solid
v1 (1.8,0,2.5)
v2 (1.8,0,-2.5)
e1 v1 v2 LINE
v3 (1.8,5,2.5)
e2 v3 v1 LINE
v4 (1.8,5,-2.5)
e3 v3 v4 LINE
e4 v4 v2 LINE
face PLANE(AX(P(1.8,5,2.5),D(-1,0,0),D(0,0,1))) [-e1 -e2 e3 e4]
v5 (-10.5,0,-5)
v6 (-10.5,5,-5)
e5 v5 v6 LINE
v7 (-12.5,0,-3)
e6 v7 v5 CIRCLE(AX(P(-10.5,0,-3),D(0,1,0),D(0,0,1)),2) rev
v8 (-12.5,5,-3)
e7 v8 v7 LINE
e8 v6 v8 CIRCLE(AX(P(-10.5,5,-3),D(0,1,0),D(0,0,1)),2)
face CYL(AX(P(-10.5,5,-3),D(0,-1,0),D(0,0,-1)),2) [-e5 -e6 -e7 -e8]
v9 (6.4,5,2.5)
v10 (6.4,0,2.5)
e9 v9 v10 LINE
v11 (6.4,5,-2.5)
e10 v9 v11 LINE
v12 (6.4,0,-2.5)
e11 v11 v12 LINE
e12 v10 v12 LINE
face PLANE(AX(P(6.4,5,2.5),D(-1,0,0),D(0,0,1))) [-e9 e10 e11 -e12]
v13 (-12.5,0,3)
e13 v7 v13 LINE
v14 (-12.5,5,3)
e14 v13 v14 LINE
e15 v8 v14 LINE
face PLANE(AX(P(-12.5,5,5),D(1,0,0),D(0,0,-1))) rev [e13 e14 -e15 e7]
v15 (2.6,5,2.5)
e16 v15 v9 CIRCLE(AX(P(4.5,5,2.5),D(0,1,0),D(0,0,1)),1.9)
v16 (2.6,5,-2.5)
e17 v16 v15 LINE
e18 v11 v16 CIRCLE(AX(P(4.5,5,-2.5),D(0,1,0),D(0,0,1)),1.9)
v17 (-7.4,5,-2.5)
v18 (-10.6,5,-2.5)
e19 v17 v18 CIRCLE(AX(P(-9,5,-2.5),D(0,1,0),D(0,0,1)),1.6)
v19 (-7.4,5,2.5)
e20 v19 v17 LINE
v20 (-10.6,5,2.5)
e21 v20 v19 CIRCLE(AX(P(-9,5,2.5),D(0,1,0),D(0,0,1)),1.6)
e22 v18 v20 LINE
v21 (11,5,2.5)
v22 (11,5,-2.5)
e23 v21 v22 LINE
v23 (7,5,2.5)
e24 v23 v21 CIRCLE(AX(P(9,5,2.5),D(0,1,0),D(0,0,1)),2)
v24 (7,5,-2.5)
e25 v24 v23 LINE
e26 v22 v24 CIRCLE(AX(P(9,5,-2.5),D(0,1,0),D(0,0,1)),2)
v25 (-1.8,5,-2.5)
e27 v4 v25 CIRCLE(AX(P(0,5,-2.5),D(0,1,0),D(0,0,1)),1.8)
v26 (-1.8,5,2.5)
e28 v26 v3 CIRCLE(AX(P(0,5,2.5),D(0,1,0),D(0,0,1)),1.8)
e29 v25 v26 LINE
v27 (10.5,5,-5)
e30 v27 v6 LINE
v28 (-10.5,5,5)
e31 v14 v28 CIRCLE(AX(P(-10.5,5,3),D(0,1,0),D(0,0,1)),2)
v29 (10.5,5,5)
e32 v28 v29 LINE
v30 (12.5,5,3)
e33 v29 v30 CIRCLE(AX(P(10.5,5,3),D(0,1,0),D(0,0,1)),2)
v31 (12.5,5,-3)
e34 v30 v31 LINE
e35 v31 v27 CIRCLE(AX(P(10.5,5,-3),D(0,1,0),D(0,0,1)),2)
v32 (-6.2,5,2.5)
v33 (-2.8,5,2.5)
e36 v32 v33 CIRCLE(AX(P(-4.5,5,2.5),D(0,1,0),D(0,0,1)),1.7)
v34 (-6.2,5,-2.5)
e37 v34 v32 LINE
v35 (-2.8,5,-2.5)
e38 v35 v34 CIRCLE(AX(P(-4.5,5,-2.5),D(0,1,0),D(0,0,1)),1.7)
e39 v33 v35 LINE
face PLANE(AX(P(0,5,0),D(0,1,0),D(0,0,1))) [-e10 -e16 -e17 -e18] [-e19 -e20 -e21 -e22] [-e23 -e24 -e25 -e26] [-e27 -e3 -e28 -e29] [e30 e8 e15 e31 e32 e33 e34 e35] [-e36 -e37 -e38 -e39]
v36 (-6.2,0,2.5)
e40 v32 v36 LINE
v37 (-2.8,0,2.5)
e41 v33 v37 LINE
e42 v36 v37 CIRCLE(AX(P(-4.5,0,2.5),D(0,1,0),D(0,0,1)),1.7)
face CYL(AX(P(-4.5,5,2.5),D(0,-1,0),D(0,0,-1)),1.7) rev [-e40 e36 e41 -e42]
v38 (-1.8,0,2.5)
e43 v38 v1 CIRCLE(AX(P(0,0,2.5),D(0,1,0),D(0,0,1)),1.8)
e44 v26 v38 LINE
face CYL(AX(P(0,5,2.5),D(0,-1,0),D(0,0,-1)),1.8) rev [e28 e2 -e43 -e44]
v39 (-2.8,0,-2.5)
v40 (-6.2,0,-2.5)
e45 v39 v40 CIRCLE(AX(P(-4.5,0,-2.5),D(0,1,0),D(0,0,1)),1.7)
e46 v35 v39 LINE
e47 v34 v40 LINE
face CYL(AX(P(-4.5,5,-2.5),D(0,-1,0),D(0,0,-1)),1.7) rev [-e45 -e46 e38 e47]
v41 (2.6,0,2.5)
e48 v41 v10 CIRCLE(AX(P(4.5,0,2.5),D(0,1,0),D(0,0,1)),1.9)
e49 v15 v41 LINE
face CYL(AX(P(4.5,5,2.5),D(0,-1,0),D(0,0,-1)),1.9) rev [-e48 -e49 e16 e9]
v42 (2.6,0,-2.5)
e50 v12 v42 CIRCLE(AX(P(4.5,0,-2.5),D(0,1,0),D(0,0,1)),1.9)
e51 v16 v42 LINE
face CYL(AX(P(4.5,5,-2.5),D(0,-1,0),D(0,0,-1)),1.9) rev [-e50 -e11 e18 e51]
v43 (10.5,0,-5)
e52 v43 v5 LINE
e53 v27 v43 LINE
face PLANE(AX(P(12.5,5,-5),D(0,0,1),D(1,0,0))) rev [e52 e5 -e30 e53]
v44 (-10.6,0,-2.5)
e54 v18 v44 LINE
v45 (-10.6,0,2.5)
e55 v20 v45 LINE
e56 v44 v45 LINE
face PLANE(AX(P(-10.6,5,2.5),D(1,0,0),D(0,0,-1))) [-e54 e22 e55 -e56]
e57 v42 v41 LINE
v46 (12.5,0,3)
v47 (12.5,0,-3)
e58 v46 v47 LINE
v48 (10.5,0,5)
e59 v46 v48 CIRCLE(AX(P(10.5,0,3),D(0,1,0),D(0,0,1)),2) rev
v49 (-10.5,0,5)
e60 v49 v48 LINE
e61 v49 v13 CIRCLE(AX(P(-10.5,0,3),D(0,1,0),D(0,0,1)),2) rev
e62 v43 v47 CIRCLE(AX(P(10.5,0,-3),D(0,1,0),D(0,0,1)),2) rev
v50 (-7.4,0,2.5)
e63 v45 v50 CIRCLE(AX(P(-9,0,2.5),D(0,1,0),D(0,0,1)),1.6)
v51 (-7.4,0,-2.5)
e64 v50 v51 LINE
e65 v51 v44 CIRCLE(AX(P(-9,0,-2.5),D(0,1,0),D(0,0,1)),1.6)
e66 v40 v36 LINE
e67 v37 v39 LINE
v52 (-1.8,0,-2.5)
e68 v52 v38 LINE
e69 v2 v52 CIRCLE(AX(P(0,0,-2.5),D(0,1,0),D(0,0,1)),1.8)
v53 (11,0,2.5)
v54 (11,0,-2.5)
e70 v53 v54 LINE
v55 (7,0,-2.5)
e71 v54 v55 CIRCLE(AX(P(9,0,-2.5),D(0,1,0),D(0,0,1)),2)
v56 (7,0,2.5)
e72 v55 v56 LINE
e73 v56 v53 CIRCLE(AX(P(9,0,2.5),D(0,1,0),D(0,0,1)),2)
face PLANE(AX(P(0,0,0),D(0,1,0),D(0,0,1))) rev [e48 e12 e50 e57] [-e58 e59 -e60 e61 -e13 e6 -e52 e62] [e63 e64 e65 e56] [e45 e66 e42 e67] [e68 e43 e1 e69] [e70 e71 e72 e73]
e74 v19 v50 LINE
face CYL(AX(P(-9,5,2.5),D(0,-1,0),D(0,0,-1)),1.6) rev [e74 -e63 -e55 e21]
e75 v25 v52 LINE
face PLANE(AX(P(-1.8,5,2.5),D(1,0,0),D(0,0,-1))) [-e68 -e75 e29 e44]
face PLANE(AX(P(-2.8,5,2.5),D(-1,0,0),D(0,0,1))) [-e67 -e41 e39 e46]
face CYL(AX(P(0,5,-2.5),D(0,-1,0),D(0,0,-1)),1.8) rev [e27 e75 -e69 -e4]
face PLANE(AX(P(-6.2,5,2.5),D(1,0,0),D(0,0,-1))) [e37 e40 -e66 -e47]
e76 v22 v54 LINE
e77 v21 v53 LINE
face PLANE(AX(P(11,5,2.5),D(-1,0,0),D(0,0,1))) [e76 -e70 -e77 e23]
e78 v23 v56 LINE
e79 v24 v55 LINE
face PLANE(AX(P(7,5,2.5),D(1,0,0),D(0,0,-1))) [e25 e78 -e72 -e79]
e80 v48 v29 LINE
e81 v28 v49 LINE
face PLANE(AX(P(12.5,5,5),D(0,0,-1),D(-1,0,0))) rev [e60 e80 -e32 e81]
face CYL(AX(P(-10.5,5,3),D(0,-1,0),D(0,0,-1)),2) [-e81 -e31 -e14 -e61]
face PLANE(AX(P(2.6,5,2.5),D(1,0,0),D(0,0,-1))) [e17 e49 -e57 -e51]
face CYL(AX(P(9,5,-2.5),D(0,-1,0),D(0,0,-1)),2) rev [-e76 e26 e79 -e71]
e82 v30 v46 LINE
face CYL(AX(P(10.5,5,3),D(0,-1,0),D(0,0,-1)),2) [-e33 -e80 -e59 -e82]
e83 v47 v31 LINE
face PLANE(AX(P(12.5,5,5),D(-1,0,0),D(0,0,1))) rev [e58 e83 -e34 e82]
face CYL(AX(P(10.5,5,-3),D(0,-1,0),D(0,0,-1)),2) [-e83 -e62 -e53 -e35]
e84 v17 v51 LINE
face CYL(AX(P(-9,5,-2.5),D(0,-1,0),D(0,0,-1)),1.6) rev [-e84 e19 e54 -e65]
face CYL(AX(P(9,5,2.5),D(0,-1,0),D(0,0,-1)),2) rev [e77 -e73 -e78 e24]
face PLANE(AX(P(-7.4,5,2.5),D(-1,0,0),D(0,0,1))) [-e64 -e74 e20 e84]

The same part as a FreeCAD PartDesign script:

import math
import FreeCAD as App
import Part
import Sketcher
from FreeCAD import Vector


def edges_at(feature, points):
    """Names of the edges that pass closest to the given points."""
    edges = feature.Shape.Edges
    near = lambda p: min(range(len(edges)), key=lambda i: edges[i].distToShape(Part.Vertex(*p))[0])
    return sorted({f"Edge{near(p) + 1}" for p in points})

doc = App.newDocument("Part")
body = doc.addObject("PartDesign::Body", "Body")

sketch1 = doc.addObject("Sketcher::SketchObject", "Sketch")
body.addObject(sketch1)
sketch1.AttachmentSupport = (doc.XZ_Plane, [""])
sketch1.MapMode = "FlatFace"
sketch1.addGeometry(Part.LineSegment(Vector(-12.5, -5, 0), Vector(-12.5, 5, 0)), False)
sketch1.addGeometry(Part.LineSegment(Vector(-12.5, 5, 0), Vector(12.5, 5, 0)), False)
sketch1.addGeometry(Part.LineSegment(Vector(12.5, 5, 0), Vector(12.5, -5, 0)), False)
sketch1.addGeometry(Part.LineSegment(Vector(12.5, -5, 0), Vector(-12.5, -5, 0)), False)
sketch1.addGeometry(Part.ArcOfCircle(Part.Circle(Vector(-9, 2.5, 0), Vector(0, 0, 1), 1.6), math.radians(0), math.radians(180)), False)
sketch1.addGeometry(Part.LineSegment(Vector(-10.6, 2.5, 0), Vector(-10.6, -2.5, 0)), False)
sketch1.addGeometry(Part.ArcOfCircle(Part.Circle(Vector(-9, -2.5, 0), Vector(0, 0, 1), 1.6), math.radians(180), math.radians(360)), False)
sketch1.addGeometry(Part.LineSegment(Vector(-7.4, -2.5, 0), Vector(-7.4, 2.5, 0)), False)
sketch1.addGeometry(Part.ArcOfCircle(Part.Circle(Vector(-4.5, 2.5, 0), Vector(0, 0, 1), 1.7), math.radians(0), math.radians(180)), False)
sketch1.addGeometry(Part.LineSegment(Vector(-6.2, 2.5, 0), Vector(-6.2, -2.5, 0)), False)
sketch1.addGeometry(Part.ArcOfCircle(Part.Circle(Vector(-4.5, -2.5, 0), Vector(0, 0, 1), 1.7), math.radians(180), math.radians(360)), False)
sketch1.addGeometry(Part.LineSegment(Vector(-2.8, -2.5, 0), Vector(-2.8, 2.5, 0)), False)
sketch1.addGeometry(Part.ArcOfCircle(Part.Circle(Vector(0, 2.5, 0), Vector(0, 0, 1), 1.8), math.radians(0), math.radians(180)), False)
sketch1.addGeometry(Part.LineSegment(Vector(-1.8, 2.5, 0), Vector(-1.8, -2.5, 0)), False)
sketch1.addGeometry(Part.ArcOfCircle(Part.Circle(Vector(0, -2.5, 0), Vector(0, 0, 1), 1.8), math.radians(180), math.radians(360)), False)
sketch1.addGeometry(Part.LineSegment(Vector(1.8, -2.5, 0), Vector(1.8, 2.5, 0)), False)
sketch1.addGeometry(Part.ArcOfCircle(Part.Circle(Vector(4.5, 2.5, 0), Vector(0, 0, 1), 1.9), math.radians(0), math.radians(180)), False)
sketch1.addGeometry(Part.LineSegment(Vector(2.6, 2.5, 0), Vector(2.6, -2.5, 0)), False)
sketch1.addGeometry(Part.ArcOfCircle(Part.Circle(Vector(4.5, -2.5, 0), Vector(0, 0, 1), 1.9), math.radians(180), math.radians(360)), False)
sketch1.addGeometry(Part.LineSegment(Vector(6.4, -2.5, 0), Vector(6.4, 2.5, 0)), False)
sketch1.addGeometry(Part.ArcOfCircle(Part.Circle(Vector(9, 2.5, 0), Vector(0, 0, 1), 2), math.radians(0), math.radians(180)), False)
sketch1.addGeometry(Part.LineSegment(Vector(7, 2.5, 0), Vector(7, -2.5, 0)), False)
sketch1.addGeometry(Part.ArcOfCircle(Part.Circle(Vector(9, -2.5, 0), Vector(0, 0, 1), 2), math.radians(180), math.radians(360)), False)
sketch1.addGeometry(Part.LineSegment(Vector(11, -2.5, 0), Vector(11, 2.5, 0)), False)
sketch1.addConstraint(Sketcher.Constraint("Coincident", 0, 2, 1, 1))
sketch1.addConstraint(Sketcher.Constraint("Coincident", 1, 2, 2, 1))
sketch1.addConstraint(Sketcher.Constraint("Coincident", 2, 2, 3, 1))
sketch1.addConstraint(Sketcher.Constraint("Coincident", 3, 2, 0, 1))
sketch1.addConstraint(Sketcher.Constraint("Tangent", 4, 2, 5, 1))
sketch1.addConstraint(Sketcher.Constraint("Tangent", 5, 2, 6, 1))
sketch1.addConstraint(Sketcher.Constraint("Tangent", 6, 2, 7, 1))
sketch1.addConstraint(Sketcher.Constraint("Tangent", 7, 2, 4, 1))
sketch1.addConstraint(Sketcher.Constraint("Tangent", 8, 2, 9, 1))
sketch1.addConstraint(Sketcher.Constraint("Tangent", 9, 2, 10, 1))
sketch1.addConstraint(Sketcher.Constraint("Tangent", 10, 2, 11, 1))
sketch1.addConstraint(Sketcher.Constraint("Tangent", 11, 2, 8, 1))
sketch1.addConstraint(Sketcher.Constraint("Tangent", 12, 2, 13, 1))
sketch1.addConstraint(Sketcher.Constraint("Tangent", 13, 2, 14, 1))
sketch1.addConstraint(Sketcher.Constraint("Tangent", 14, 2, 15, 1))
sketch1.addConstraint(Sketcher.Constraint("Tangent", 15, 2, 12, 1))
sketch1.addConstraint(Sketcher.Constraint("Tangent", 16, 2, 17, 1))
sketch1.addConstraint(Sketcher.Constraint("Tangent", 17, 2, 18, 1))
sketch1.addConstraint(Sketcher.Constraint("Tangent", 18, 2, 19, 1))
sketch1.addConstraint(Sketcher.Constraint("Tangent", 19, 2, 16, 1))
sketch1.addConstraint(Sketcher.Constraint("Tangent", 20, 2, 21, 1))
sketch1.addConstraint(Sketcher.Constraint("Tangent", 21, 2, 22, 1))
sketch1.addConstraint(Sketcher.Constraint("Tangent", 22, 2, 23, 1))
sketch1.addConstraint(Sketcher.Constraint("Tangent", 23, 2, 20, 1))
sketch1.addConstraint(Sketcher.Constraint("Vertical", 0))
sketch1.addConstraint(Sketcher.Constraint("Horizontal", 1))
sketch1.addConstraint(Sketcher.Constraint("Vertical", 2))
sketch1.addConstraint(Sketcher.Constraint("Horizontal", 3))
sketch1.addConstraint(Sketcher.Constraint("Vertical", 5))
sketch1.addConstraint(Sketcher.Constraint("Vertical", 7))
sketch1.addConstraint(Sketcher.Constraint("Vertical", 9))
sketch1.addConstraint(Sketcher.Constraint("Vertical", 11))
sketch1.addConstraint(Sketcher.Constraint("Vertical", 13))
sketch1.addConstraint(Sketcher.Constraint("Vertical", 15))
sketch1.addConstraint(Sketcher.Constraint("Vertical", 17))
sketch1.addConstraint(Sketcher.Constraint("Vertical", 19))
sketch1.addConstraint(Sketcher.Constraint("Vertical", 21))
sketch1.addConstraint(Sketcher.Constraint("Vertical", 23))
sketch1.addConstraint(Sketcher.Constraint("Symmetric", 12, 3, 14, 3, -1, 1))
sketch1.addConstraint(Sketcher.Constraint("Symmetric", 10, 3, 16, 3, -1, 1))
sketch1.addConstraint(Sketcher.Constraint("Symmetric", 6, 3, 20, 3, -1, 1))
sketch1.addConstraint(Sketcher.Constraint("Symmetric", 0, 2, 2, 2, -1, 1))
sketch1.addConstraint(Sketcher.Constraint("Horizontal", 4, 3, 8, 3))
sketch1.addConstraint(Sketcher.Constraint("Horizontal", 6, 3, 10, 3))
sketch1.addConstraint(Sketcher.Constraint("Horizontal", 8, 3, 12, 3))
sketch1.addConstraint(Sketcher.Constraint("Horizontal", 10, 3, 14, 3))
sketch1.addConstraint(Sketcher.Constraint("Horizontal", 14, 3, 18, 3))
sketch1.addConstraint(Sketcher.Constraint("Horizontal", 18, 3, 22, 3))
sketch1.addConstraint(Sketcher.Constraint("Radius", 20, 2.0))
sketch1.addConstraint(Sketcher.Constraint("Radius", 4, 1.6))
sketch1.addConstraint(Sketcher.Constraint("Radius", 8, 1.7))
sketch1.addConstraint(Sketcher.Constraint("Radius", 12, 1.8))
sketch1.addConstraint(Sketcher.Constraint("Radius", 16, 1.9))
sketch1.addConstraint(Sketcher.Constraint("DistanceX", 1, 1, 1, 2, 25.0))
sketch1.addConstraint(Sketcher.Constraint("DistanceY", 0, 1, 0, 2, 10.0))
sketch1.addConstraint(Sketcher.Constraint("DistanceY", 5, 2, 5, 1, 5.0))
sketch1.addConstraint(Sketcher.Constraint("DistanceX", 4, 3, -1, 1, 9.0))
sketch1.addConstraint(Sketcher.Constraint("DistanceX", 8, 3, 16, 3, 9.0))
pad1 = doc.addObject("PartDesign::Pad", "Pad")
body.addObject(pad1)
pad1.Profile = sketch1
pad1.Length = 5
pad1.Reversed = True
doc.recompute()

fillet = doc.addObject("PartDesign::Fillet", "Fillet")
body.addObject(fillet)
fillet.Base = (pad1, edges_at(pad1, [
    (-12.5, 2.5, -5),
    (12.5, 2.5, -5),
    (12.5, 2.5, 5),
    (-12.5, 2.5, 5),
]))
fillet.Radius = 2

doc.recompute()
